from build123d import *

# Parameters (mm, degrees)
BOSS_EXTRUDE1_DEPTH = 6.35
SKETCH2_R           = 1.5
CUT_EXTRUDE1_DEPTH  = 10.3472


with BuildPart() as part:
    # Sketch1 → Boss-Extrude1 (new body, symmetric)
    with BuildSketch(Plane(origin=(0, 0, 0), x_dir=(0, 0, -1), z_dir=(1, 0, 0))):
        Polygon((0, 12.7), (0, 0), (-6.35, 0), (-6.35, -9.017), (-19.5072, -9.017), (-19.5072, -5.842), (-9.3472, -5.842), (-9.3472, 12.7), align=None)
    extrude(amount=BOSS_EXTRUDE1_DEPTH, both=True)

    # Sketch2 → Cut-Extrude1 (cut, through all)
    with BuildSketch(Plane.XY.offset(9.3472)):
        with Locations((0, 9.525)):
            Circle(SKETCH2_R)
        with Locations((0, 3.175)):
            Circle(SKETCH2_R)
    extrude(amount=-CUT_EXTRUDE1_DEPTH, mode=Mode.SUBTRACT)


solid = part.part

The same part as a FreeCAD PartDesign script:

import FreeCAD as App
import Part
import Sketcher
from FreeCAD import Vector
Q = App.Units.Quantity

doc = App.newDocument("Part")
body = doc.addObject("PartDesign::Body", "Body")

sketch1 = body.newObject("Sketcher::SketchObject", "Sketch")
sketch1.AttachmentSupport = (doc.getObject("YZ_Plane"), [""])
sketch1.MapMode = "FlatFace"
sketch1.addGeometry(Part.LineSegment(Vector(0, 0, 0), Vector(12.7, 0, 0)), False)
sketch1.addGeometry(Part.LineSegment(Vector(12.7, 0, 0), Vector(12.7, 9.3472, 0)), False)
sketch1.addGeometry(Part.LineSegment(Vector(12.7, 9.3472, 0), Vector(-5.842, 9.3472, 0)), False)
sketch1.addGeometry(Part.LineSegment(Vector(-5.842, 9.3472, 0), Vector(-5.842, 19.5072, 0)), False)
sketch1.addGeometry(Part.LineSegment(Vector(-5.842, 19.5072, 0), Vector(-9.017, 19.5072, 0)), False)
sketch1.addGeometry(Part.LineSegment(Vector(-9.017, 19.5072, 0), Vector(-9.017, 6.35, 0)), False)
sketch1.addGeometry(Part.LineSegment(Vector(-9.017, 6.35, 0), Vector(0, 6.35, 0)), False)
sketch1.addGeometry(Part.LineSegment(Vector(0, 6.35, 0), Vector(0, 0, 0)), False)
sketch1.addConstraint(Sketcher.Constraint("Coincident", 0, 2, 1, 1))
sketch1.addConstraint(Sketcher.Constraint("Coincident", 1, 2, 2, 1))
sketch1.addConstraint(Sketcher.Constraint("Coincident", 2, 2, 3, 1))
sketch1.addConstraint(Sketcher.Constraint("Coincident", 3, 2, 4, 1))
sketch1.addConstraint(Sketcher.Constraint("Coincident", 4, 2, 5, 1))
sketch1.addConstraint(Sketcher.Constraint("Coincident", 5, 2, 6, 1))
sketch1.addConstraint(Sketcher.Constraint("Coincident", 6, 2, 7, 1))
sketch1.addConstraint(Sketcher.Constraint("Coincident", 7, 2, 0, 1))
sketch1.addConstraint(Sketcher.Constraint("Horizontal", 0))
sketch1.addConstraint(Sketcher.Constraint("Vertical", 1))
sketch1.addConstraint(Sketcher.Constraint("Horizontal", 2))
sketch1.addConstraint(Sketcher.Constraint("Vertical", 3))
sketch1.addConstraint(Sketcher.Constraint("Horizontal", 4))
sketch1.addConstraint(Sketcher.Constraint("Vertical", 5))
sketch1.addConstraint(Sketcher.Constraint("Horizontal", 6))
sketch1.addConstraint(Sketcher.Constraint("Vertical", 7))
sketch1.addConstraint(Sketcher.Constraint("Coincident", 7, 2, -1, 1))
sketch1.addConstraint(Sketcher.Constraint("DistanceX", 0, 1, 0, 2, Q("0.5 in")))
sketch1.addConstraint(Sketcher.Constraint("DistanceY", 3, 1, 3, 2, Q("0.4 in")))
sketch1.addConstraint(Sketcher.Constraint("DistanceX", 2, 2, 2, 1, Q("0.73 in")))
sketch1.addConstraint(Sketcher.Constraint("DistanceY", 7, 2, 7, 1, Q("0.25 in")))
sketch1.addConstraint(Sketcher.Constraint("DistanceX", 4, 2, 4, 1, Q("0.125 in")))
sketch1.addConstraint(Sketcher.Constraint("DistanceY", 1, 1, 1, 2, Q("0.368 in")))
pad1 = body.newObject("PartDesign::Pad", "Pad")
pad1.Profile = sketch1
pad1.Length = Q("0.5 in")
pad1.Midplane = True

sketch2 = body.newObject("Sketcher::SketchObject", "Sketch001")
sketch2.AttachmentSupport = (doc.getObject("XY_Plane"), [""])
sketch2.MapMode = "FlatFace"
sketch2.AttachmentOffset = App.Placement(Vector(0, 0, 0.368 * 25.4), App.Rotation())
sketch2.addGeometry(Part.Circle(Vector(0, 9.525, 0), Vector(0, 0, 1), 1.5), False)
sketch2.addGeometry(Part.Circle(Vector(0, 3.175, 0), Vector(0, 0, 1), 1.5), False)
sketch2.addConstraint(Sketcher.Constraint("Equal", 0, 1))
sketch2.addConstraint(Sketcher.Constraint("PointOnObject", 0, 3, -2))
sketch2.addConstraint(Sketcher.Constraint("PointOnObject", 1, 3, -2))
sketch2.addConstraint(Sketcher.Constraint("Diameter", 0, 3.0))
sketch2.addConstraint(Sketcher.Constraint("DistanceY", 1, 3, 0, 3, Q("0.25 in")))
sketch2.addConstraint(Sketcher.Constraint("DistanceY", -1, 1, 0, 3, Q("0.375 in")))
pocket1 = body.newObject("PartDesign::Pocket", "Pocket")
pocket1.Profile = sketch2
pocket1.Type = "ThroughAll"

doc.recompute()
